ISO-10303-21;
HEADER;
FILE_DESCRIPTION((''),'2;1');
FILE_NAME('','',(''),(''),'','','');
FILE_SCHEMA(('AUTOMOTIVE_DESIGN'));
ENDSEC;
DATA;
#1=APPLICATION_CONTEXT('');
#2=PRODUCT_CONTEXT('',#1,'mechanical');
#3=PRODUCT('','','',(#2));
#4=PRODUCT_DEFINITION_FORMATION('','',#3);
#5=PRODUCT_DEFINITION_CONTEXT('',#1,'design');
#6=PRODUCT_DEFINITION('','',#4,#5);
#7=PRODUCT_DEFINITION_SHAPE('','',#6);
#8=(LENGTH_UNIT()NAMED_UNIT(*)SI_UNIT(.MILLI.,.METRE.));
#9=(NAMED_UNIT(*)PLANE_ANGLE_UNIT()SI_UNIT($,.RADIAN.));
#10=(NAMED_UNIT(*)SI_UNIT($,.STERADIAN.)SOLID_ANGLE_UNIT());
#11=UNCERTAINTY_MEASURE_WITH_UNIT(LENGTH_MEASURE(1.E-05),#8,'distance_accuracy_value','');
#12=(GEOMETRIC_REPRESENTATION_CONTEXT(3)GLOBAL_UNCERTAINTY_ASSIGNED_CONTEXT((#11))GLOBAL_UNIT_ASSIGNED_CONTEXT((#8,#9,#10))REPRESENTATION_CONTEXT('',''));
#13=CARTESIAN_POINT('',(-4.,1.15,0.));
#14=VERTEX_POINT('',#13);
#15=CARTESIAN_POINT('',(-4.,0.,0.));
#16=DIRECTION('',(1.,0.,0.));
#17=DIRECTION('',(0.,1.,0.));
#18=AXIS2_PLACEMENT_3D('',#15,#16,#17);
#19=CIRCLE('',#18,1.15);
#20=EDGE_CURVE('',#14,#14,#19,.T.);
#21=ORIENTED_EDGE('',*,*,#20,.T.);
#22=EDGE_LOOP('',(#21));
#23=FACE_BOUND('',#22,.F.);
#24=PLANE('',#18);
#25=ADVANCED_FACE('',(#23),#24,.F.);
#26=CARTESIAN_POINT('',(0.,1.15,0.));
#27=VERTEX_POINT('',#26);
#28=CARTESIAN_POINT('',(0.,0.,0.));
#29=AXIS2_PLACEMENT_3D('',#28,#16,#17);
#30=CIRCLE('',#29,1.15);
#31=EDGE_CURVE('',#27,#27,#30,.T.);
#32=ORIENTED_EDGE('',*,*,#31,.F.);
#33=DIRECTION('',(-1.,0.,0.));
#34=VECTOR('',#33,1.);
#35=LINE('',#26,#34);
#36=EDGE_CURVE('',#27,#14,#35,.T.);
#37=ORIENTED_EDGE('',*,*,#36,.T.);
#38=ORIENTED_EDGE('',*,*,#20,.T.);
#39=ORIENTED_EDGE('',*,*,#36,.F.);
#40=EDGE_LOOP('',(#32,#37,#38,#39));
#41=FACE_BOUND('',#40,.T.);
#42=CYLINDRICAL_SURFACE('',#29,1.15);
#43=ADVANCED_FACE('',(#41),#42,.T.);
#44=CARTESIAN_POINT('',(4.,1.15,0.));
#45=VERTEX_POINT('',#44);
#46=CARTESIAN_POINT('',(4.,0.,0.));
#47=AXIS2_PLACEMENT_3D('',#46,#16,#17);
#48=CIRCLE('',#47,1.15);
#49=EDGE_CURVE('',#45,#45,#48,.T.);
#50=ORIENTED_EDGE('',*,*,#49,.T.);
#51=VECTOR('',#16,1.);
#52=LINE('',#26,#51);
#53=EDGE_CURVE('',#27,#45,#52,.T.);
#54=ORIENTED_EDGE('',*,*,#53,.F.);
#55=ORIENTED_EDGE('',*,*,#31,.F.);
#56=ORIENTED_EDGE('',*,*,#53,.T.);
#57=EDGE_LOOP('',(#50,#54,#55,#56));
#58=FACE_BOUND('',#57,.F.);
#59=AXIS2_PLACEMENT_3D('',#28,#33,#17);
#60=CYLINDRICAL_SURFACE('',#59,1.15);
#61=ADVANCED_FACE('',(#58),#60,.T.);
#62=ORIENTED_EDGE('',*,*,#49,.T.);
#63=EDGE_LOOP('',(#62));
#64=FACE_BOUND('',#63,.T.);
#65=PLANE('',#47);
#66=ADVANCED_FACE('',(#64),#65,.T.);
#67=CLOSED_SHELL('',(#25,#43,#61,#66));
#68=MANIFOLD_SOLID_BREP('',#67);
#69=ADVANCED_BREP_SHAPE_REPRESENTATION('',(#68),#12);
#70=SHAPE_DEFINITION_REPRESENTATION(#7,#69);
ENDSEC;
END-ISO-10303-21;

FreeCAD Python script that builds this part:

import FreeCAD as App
import Part
import Sketcher
from FreeCAD import Vector

doc = App.newDocument("Part")
body = doc.addObject("PartDesign::Body", "Body")

# Sketch on YZ plane
sketch1 = body.newObject("Sketcher::SketchObject", "Sketch")
sketch1.AttachmentSupport = (doc.getObject("YZ_Plane"), [""])
sketch1.MapMode = "FlatFace"
sketch1.addGeometry(Part.Circle(Vector(0, 0, 0), Vector(0, 0, 1), 1.1), False)
sketch1.addConstraint([
    Sketcher.Constraint("Coincident", 0, 3, -1, 1),
    Sketcher.Constraint("Diameter", 0, 2.3),
])
pad1 = body.newObject("PartDesign::Pad", "Pad")
pad1.Profile = sketch1
pad1.Length = 8
pad1.Midplane = True

doc.recompute()
